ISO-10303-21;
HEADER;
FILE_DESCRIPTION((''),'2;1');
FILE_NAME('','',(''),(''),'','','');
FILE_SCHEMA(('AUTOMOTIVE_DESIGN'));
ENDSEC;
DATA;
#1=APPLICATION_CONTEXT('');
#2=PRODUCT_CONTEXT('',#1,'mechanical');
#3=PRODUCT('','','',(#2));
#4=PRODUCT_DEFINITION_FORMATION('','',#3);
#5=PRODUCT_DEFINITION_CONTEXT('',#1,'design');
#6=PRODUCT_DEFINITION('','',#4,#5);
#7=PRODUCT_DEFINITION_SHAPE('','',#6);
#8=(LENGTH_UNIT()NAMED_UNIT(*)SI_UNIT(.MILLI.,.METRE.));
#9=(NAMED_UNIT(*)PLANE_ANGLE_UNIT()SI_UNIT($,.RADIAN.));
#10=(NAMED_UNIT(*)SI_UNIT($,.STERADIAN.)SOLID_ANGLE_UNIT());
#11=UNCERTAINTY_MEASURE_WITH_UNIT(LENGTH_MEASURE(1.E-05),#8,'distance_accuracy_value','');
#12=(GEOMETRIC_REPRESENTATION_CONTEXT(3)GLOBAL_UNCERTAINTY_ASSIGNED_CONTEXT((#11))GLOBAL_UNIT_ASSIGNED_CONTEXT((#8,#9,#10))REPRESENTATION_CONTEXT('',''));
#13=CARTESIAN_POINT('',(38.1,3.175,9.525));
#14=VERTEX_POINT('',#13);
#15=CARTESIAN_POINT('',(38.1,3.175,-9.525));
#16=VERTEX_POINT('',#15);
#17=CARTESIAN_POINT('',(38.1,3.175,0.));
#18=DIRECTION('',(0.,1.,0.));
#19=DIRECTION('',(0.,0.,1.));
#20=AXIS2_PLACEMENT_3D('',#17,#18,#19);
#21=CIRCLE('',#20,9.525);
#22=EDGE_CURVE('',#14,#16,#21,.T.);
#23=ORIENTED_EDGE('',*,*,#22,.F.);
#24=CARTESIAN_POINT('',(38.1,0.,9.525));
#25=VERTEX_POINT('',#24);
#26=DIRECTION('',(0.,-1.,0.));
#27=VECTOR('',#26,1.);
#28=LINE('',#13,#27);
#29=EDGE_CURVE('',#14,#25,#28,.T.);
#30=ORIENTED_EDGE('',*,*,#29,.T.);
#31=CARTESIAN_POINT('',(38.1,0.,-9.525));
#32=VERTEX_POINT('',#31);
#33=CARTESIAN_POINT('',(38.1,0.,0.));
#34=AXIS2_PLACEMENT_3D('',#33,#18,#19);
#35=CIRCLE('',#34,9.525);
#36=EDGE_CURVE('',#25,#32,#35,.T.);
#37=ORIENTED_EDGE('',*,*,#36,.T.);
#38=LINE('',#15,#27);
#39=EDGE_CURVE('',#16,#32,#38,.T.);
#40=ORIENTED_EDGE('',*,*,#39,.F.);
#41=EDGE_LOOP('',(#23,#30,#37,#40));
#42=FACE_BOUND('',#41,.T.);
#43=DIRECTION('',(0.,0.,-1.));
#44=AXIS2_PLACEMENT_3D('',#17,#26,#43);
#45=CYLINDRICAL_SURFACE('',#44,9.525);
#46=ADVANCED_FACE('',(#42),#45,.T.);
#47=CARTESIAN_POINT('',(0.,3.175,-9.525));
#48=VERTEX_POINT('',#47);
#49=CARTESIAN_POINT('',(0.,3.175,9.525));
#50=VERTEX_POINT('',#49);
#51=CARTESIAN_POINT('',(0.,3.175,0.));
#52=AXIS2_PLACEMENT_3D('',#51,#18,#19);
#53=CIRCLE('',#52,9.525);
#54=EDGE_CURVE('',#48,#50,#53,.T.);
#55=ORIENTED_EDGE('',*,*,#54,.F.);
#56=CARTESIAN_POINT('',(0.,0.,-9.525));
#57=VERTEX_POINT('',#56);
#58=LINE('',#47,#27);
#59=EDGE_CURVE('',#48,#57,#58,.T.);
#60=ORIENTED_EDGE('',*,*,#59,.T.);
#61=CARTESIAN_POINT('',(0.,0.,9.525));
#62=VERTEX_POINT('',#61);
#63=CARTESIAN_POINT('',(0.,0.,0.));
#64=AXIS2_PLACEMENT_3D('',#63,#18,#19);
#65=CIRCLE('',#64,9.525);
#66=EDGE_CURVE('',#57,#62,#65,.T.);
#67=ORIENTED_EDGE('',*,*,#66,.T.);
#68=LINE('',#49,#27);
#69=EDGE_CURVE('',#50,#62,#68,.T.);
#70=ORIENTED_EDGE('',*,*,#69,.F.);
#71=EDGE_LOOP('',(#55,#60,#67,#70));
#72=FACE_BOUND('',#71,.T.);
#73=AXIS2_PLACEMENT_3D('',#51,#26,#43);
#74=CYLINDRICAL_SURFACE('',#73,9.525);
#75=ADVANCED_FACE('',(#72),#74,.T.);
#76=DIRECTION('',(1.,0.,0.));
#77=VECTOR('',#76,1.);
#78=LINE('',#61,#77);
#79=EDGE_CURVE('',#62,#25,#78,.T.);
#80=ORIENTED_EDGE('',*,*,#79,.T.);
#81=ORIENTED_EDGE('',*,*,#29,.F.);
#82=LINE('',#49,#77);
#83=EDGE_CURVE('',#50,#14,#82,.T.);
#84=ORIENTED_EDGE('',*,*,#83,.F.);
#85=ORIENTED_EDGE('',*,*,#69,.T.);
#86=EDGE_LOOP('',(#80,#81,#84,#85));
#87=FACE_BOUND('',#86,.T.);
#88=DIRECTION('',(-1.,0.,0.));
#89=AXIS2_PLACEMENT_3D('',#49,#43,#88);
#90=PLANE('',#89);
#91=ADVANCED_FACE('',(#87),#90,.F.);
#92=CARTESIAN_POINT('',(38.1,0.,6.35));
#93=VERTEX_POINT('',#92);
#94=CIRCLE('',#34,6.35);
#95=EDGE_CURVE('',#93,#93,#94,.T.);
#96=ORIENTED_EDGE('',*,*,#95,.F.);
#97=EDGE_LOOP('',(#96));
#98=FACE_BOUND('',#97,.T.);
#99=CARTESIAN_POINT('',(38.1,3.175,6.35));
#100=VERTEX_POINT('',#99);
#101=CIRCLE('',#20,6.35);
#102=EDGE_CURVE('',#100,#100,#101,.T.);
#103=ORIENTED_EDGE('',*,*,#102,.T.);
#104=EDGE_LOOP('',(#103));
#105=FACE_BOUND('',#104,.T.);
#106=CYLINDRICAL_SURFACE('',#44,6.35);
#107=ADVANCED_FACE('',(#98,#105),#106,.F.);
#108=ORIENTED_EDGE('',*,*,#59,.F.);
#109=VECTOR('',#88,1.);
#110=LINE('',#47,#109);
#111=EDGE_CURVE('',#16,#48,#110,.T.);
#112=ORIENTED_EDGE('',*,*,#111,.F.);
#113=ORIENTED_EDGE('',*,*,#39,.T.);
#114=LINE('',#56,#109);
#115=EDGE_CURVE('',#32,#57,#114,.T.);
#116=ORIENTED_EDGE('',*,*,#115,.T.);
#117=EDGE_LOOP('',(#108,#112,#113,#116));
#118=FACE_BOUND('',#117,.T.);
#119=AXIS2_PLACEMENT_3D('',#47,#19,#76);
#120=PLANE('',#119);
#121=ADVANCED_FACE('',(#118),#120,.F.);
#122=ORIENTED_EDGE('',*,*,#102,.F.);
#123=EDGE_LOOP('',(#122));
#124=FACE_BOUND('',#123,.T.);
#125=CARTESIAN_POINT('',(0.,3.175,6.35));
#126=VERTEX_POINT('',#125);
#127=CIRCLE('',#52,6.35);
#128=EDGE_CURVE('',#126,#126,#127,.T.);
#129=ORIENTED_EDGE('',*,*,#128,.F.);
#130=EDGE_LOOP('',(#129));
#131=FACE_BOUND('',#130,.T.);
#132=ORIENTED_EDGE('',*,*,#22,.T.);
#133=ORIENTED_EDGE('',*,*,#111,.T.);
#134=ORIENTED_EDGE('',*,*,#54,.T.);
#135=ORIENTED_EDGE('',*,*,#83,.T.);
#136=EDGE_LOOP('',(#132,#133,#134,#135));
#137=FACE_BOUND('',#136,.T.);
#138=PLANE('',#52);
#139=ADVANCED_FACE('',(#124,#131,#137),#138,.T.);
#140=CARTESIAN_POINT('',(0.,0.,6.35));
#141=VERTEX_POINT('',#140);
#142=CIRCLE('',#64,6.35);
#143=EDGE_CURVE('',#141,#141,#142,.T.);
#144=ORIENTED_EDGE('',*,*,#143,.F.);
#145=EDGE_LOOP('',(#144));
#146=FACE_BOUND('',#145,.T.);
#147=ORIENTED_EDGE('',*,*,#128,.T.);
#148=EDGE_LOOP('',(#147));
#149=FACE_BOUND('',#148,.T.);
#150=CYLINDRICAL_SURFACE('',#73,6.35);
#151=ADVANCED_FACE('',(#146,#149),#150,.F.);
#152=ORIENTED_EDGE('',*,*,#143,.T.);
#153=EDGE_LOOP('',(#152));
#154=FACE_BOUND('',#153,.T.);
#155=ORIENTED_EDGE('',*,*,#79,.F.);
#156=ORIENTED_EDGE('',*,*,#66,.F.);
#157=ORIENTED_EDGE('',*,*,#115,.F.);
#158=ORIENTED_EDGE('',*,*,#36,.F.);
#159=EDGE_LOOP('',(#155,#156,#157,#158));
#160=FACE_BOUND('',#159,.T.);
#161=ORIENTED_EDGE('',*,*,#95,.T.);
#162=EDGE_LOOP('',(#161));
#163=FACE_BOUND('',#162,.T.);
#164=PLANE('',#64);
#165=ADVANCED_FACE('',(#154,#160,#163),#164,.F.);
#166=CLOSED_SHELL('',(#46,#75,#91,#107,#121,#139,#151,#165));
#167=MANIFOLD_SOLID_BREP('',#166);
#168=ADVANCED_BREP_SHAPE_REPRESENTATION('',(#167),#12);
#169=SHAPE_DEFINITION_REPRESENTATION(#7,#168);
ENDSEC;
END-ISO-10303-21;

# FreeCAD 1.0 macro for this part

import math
import FreeCAD as App
import Part
import Sketcher
from FreeCAD import Vector
Q = App.Units.Quantity

doc = App.newDocument("Part")
body = doc.addObject("PartDesign::Body", "Body")

# Sketch on XZ plane
sketch1 = body.newObject("Sketcher::SketchObject", "Sketch")
sketch1.AttachmentSupport = (doc.getObject("XZ_Plane"), [""])
sketch1.MapMode = "FlatFace"
sketch1.addGeometry([
    Part.LineSegment(Vector(38, -10, 0), Vector(0, -10, 0)),  # 0
    Part.ArcOfCircle(Part.Circle(Vector(0, 0, 0), Vector(0, 0, 1), 10), math.radians(90), math.radians(270)),  # 1
    Part.LineSegment(Vector(0, 10, 0), Vector(38, 10, 0)),  # 2
    Part.ArcOfCircle(Part.Circle(Vector(38, 0, 0), Vector(0, 0, 1), 10), math.radians(-90), math.radians(90)),  # 3
    Part.Circle(Vector(38, 0, 0), Vector(0, 0, 1), 6),  # 4
    Part.Circle(Vector(0, 0, 0), Vector(0, 0, 1), 6),  # 5
], False)
sketch1.addConstraint([
    Sketcher.Constraint("Tangent", 0, 2, 1, 2),
    Sketcher.Constraint("Tangent", 1, 1, 2, 1),
    Sketcher.Constraint("Tangent", 2, 2, 3, 2),
    Sketcher.Constraint("Tangent", 3, 1, 0, 1),
    Sketcher.Constraint("Horizontal", 0),
    Sketcher.Constraint("Horizontal", 2),
    Sketcher.Constraint("Coincident", 1, 3, -1, 1),
    Sketcher.Constraint("Coincident", 5, 3, -1, 1),
    Sketcher.Constraint("Coincident", 4, 3, 3, 3),
    Sketcher.Constraint("Equal", 4, 5),
    Sketcher.Constraint("Diameter", 4, Q("0.5 in")),
    Sketcher.Constraint("DistanceX", 0, 2, 0, 1, Q("1.5 in")),
    Sketcher.Constraint("Radius", 1, Q("0.375 in")),
])
pad1 = body.newObject("PartDesign::Pad", "Pad")
pad1.Profile = sketch1
pad1.Length = Q("0.125 in")
pad1.Reversed = True

doc.recompute()
